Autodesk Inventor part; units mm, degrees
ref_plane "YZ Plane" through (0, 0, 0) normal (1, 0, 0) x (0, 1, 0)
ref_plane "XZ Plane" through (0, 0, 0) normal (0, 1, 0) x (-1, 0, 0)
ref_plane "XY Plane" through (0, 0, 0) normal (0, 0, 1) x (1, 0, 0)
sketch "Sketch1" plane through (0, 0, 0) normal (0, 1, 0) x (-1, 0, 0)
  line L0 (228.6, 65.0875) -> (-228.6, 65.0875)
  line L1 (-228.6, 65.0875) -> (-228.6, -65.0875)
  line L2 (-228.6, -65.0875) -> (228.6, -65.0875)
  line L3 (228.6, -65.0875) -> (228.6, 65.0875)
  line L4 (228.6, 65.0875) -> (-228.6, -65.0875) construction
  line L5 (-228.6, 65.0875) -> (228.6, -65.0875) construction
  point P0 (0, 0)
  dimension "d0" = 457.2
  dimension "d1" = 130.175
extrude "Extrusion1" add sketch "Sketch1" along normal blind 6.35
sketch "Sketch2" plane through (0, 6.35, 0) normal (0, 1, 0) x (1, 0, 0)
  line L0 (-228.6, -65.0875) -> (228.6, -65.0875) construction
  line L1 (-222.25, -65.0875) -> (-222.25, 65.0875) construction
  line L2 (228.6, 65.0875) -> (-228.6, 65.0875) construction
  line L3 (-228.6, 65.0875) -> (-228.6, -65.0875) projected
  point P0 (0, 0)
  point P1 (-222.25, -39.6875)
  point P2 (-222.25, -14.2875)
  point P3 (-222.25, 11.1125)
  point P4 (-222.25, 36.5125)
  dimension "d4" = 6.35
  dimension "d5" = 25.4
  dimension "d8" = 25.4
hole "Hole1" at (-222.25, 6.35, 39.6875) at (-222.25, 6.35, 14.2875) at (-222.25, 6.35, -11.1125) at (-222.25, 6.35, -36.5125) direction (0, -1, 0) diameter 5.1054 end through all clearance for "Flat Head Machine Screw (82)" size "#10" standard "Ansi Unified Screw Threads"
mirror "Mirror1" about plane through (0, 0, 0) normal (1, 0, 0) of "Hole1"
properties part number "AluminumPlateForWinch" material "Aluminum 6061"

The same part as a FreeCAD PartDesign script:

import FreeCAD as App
import Part
import Sketcher
from FreeCAD import Vector
Q = App.Units.Quantity


def add_polygon(sketch, points):
    """Adds a closed chain of lines whose ends are joined by coincident constraints."""
    first, n = sketch.GeometryCount, len(points)
    for a, b in zip(points, points[1:] + points[:1]):
        sketch.addGeometry(Part.LineSegment(App.Vector(*a, 0), App.Vector(*b, 0)), False)
    for i in range(n):
        sketch.addConstraint(Sketcher.Constraint("Coincident", first + i, 2, first + (i + 1) % n, 1))

doc = App.newDocument("Part")
body = doc.addObject("PartDesign::Body", "Body")

sketch1 = body.newObject("Sketcher::SketchObject", "Sketch")
sketch1.AttachmentSupport = (doc.getObject("XZ_Plane"), [""])
sketch1.MapMode = "FlatFace"
add_polygon(sketch1, [(-229, -65), (-229, 65), (229, 65), (229, -65)])
sketch1.addConstraint([
    Sketcher.Constraint("Vertical", 0),
    Sketcher.Constraint("Horizontal", 1),
    Sketcher.Constraint("Vertical", 2),
    Sketcher.Constraint("Horizontal", 3),
    Sketcher.Constraint("Symmetric", 0, 2, 2, 2, -1, 1),
    Sketcher.Constraint("DistanceX", 1, 1, 1, 2, Q("18 in")),
    Sketcher.Constraint("DistanceY", 0, 1, 0, 2, Q("5.125 in")),
])
pad1 = body.newObject("PartDesign::Pad", "Pad")
pad1.Profile = sketch1
pad1.Length = Q("0.25 in")
pad1.Reversed = True

sketch2 = body.newObject("Sketcher::SketchObject", "Sketch001")
sketch2.AttachmentSupport = (doc.getObject("XZ_Plane"), [""])
sketch2.MapMode = "FlatFace"
sketch2.AttachmentOffset = App.Placement(Vector(0, 0, -0.25 * 25.4), App.Rotation())
sketch2.addGeometry([
    Part.Circle(Vector(-222.2, 39.7, 0), Vector(0, 0, 1), 2.6),
    Part.Circle(Vector(-222.2, 14.3, 0), Vector(0, 0, 1), 2.6),
    Part.Circle(Vector(-222.2, -11.1, 0), Vector(0, 0, 1), 2.6),
    Part.Circle(Vector(-222.2, -36.5, 0), Vector(0, 0, 1), 2.6),
], False)
sketch2.addConstraint([
    Sketcher.Constraint("Equal", 0, 1),
    Sketcher.Constraint("Equal", 1, 2),
    Sketcher.Constraint("Equal", 2, 3),
    Sketcher.Constraint("Vertical", 0, 3, 1, 3),
    Sketcher.Constraint("Vertical", 1, 3, 2, 3),
    Sketcher.Constraint("Vertical", 2, 3, 3, 3),
    Sketcher.Constraint("Diameter", 0, Q("0.201 in")),
    Sketcher.Constraint("DistanceY", 1, 3, 0, 3, Q("1 in")),
    Sketcher.Constraint("DistanceY", 2, 3, 1, 3, Q("1 in")),
    Sketcher.Constraint("DistanceY", 3, 3, 2, 3, Q("1 in")),
    Sketcher.Constraint("DistanceX", 0, 3, -1, 1, Q("8.75 in")),
    Sketcher.Constraint("DistanceY", -1, 1, 0, 3, Q("1.5625 in")),
])
doc.recompute()
hole = body.newObject("PartDesign::Hole", "Hole")
hole.Profile = sketch2
hole.ThreadType = "None"
hole.Diameter = Q("0.201 in")
hole.DepthType = "ThroughAll"
hole.Reversed = True
doc.recompute()

mirrored = body.newObject("PartDesign::Mirrored", "Mirrored")
mirrored.Originals = [hole]
mirrored.MirrorPlane = (doc.getObject("YZ_Plane"), [""])
body.Tip = mirrored

doc.recompute()
